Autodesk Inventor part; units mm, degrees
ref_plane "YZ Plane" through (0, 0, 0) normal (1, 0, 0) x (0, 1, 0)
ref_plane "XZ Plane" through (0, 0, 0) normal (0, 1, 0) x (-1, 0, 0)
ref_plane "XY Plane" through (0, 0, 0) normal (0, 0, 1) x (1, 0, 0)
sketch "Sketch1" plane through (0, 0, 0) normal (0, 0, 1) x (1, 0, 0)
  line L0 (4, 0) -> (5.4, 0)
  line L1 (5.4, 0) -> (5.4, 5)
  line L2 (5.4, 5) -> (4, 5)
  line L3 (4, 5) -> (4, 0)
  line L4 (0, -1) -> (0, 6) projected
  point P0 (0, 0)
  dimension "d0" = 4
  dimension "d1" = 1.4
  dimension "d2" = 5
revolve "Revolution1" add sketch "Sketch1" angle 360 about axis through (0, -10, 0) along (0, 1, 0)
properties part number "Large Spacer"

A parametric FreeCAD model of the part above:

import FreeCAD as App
import Part
import Sketcher
from FreeCAD import Vector
Q = App.Units.Quantity


def add_polygon(sketch, points):
    """Adds a closed chain of lines whose ends are joined by coincident constraints."""
    first, n = sketch.GeometryCount, len(points)
    for a, b in zip(points, points[1:] + points[:1]):
        sketch.addGeometry(Part.LineSegment(App.Vector(*a, 0), App.Vector(*b, 0)), False)
    for i in range(n):
        sketch.addConstraint(Sketcher.Constraint("Coincident", first + i, 2, first + (i + 1) % n, 1))

doc = App.newDocument("Part")
body = doc.addObject("PartDesign::Body", "Body")

sketch1 = doc.addObject("Sketcher::SketchObject", "Sketch")
body.addObject(sketch1)
sketch1.AttachmentSupport = (doc.XY_Plane, [""])
sketch1.MapMode = "FlatFace"
add_polygon(sketch1, [(4, 5), (4, 0), (5.4, 0), (5.4, 5)])
sketch1.addConstraint(Sketcher.Constraint("Vertical", 0))
sketch1.addConstraint(Sketcher.Constraint("Horizontal", 1))
sketch1.addConstraint(Sketcher.Constraint("Vertical", 2))
sketch1.addConstraint(Sketcher.Constraint("Horizontal", 3))
sketch1.addConstraint(Sketcher.Constraint("PointOnObject", 0, 2, -1))
sketch1.addConstraint(Sketcher.Constraint("DistanceY", 0, 2, 0, 1, Q("5 mm")))
sketch1.addConstraint(Sketcher.Constraint("DistanceX", 1, 1, 1, 2, Q("1.4 mm")))
sketch1.addConstraint(Sketcher.Constraint("DistanceX", -1, 1, 0, 2, Q("4 mm")))
revolution = doc.addObject("PartDesign::Revolution", "Revolution")
body.addObject(revolution)
revolution.Profile = sketch1
revolution.ReferenceAxis = (sketch1, ["V_Axis"])
revolution.Angle = 360

doc.recompute()
